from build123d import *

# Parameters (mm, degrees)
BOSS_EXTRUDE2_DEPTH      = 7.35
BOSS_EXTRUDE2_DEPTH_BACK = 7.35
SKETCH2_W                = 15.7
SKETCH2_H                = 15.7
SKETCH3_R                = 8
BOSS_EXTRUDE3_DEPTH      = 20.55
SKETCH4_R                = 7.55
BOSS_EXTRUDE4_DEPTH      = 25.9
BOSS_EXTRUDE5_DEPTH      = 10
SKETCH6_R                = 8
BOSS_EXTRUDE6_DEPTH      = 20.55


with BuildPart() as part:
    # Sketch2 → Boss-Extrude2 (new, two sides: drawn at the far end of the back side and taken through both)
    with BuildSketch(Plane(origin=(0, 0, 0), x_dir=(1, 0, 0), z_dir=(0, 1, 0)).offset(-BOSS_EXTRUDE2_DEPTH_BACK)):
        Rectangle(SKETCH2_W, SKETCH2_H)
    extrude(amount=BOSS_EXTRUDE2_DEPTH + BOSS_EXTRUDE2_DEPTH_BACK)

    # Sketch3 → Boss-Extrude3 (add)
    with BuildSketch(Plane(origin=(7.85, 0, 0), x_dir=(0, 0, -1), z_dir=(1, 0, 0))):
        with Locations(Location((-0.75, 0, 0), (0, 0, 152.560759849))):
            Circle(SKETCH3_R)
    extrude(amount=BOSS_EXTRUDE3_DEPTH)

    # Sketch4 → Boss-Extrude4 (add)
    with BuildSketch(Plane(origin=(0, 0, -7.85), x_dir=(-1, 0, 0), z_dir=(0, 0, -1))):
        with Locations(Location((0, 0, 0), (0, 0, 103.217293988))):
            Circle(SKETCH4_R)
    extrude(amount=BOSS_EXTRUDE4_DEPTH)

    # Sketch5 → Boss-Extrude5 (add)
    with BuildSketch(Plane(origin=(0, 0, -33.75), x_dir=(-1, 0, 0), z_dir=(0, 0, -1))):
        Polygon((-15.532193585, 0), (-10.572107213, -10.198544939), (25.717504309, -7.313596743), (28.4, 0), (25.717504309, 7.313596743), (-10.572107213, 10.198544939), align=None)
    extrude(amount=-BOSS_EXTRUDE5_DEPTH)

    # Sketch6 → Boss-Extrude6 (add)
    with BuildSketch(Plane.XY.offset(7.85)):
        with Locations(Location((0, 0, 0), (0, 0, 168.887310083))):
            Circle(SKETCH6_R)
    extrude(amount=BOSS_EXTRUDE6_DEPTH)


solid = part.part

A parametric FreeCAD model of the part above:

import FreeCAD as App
import Part
import Sketcher
Q = App.Units.Quantity


def add_polygon(sketch, points):
    """Adds a closed chain of lines whose ends are joined by coincident constraints."""
    first, n = sketch.GeometryCount, len(points)
    for a, b in zip(points, points[1:] + points[:1]):
        sketch.addGeometry(Part.LineSegment(App.Vector(*a, 0), App.Vector(*b, 0)), False)
    for i in range(n):
        sketch.addConstraint(Sketcher.Constraint("Coincident", first + i, 2, first + (i + 1) % n, 1))

doc = App.newDocument("Part")
body = doc.addObject("PartDesign::Body", "Body")

sketch1 = body.newObject("Sketcher::SketchObject", "Sketch")
sketch1.AttachmentSupport = (doc.getObject("XZ_Plane"), [""])
sketch1.MapMode = "FlatFace"
add_polygon(sketch1, [(-7.85, -7.85), (-7.85, 7.85), (7.85, 7.85), (7.85, -7.85)])
sketch1.addConstraint(Sketcher.Constraint("Vertical", 0))
sketch1.addConstraint(Sketcher.Constraint("Horizontal", 1))
sketch1.addConstraint(Sketcher.Constraint("Vertical", 2))
sketch1.addConstraint(Sketcher.Constraint("Horizontal", 3))
sketch1.addConstraint(Sketcher.Constraint("Symmetric", 0, 2, 2, 2, -1, 1))
sketch1.addConstraint(Sketcher.Constraint("Equal", 3, 0))
sketch1.addConstraint(Sketcher.Constraint("DistanceX", 1, 1, 1, 2, Q("15.7 mm")))
pad1 = body.newObject("PartDesign::Pad", "Pad")
pad1.Profile = sketch1
pad1.Type = "TwoLengths"
pad1.Length = 7.35
pad1.Length2 = 7.35
pad1.Reversed = True

sketch2 = body.newObject("Sketcher::SketchObject", "Sketch001")
sketch2.AttachmentSupport = (doc.getObject("YZ_Plane"), [""])
sketch2.MapMode = "FlatFace"
sketch2.AttachmentOffset = App.Placement(App.Vector(0, 0, 7.85), App.Rotation())
sketch2.addGeometry(Part.Circle(App.Vector(0, 0.75, 0), App.Vector(0, 0, 1), 8), False)
sketch2.addConstraint(Sketcher.Constraint("PointOnObject", 0, 3, -2))
sketch2.addConstraint(Sketcher.Constraint("Diameter", 0, Q("16 mm")))
sketch2.addConstraint(Sketcher.Constraint("DistanceY", -1, 1, 0, 3, Q("0.75 mm")))
pad2 = body.newObject("PartDesign::Pad", "Pad001")
pad2.Profile = sketch2
pad2.Length = 20.55

sketch3 = body.newObject("Sketcher::SketchObject", "Sketch002")
sketch3.AttachmentSupport = (doc.getObject("XY_Plane"), [""])
sketch3.MapMode = "FlatFace"
sketch3.AttachmentOffset = App.Placement(App.Vector(0, 0, -7.85), App.Rotation())
sketch3.addGeometry(Part.Circle(App.Vector(0, 0, 0), App.Vector(0, 0, 1), 7.55), False)
sketch3.addConstraint(Sketcher.Constraint("Coincident", 0, 3, -1, 1))
sketch3.addConstraint(Sketcher.Constraint("Diameter", 0, Q("15.1 mm")))
pad3 = body.newObject("PartDesign::Pad", "Pad002")
pad3.Profile = sketch3
pad3.Length = 25.9
pad3.Reversed = True

sketch4 = body.newObject("Sketcher::SketchObject", "Sketch003")
sketch4.AttachmentSupport = (doc.getObject("XY_Plane"), [""])
sketch4.MapMode = "FlatFace"
sketch4.AttachmentOffset = App.Placement(App.Vector(0, 0, -33.75), App.Rotation())
add_polygon(sketch4, [(15.532194, 0), (10.572107, -10.198545), (-25.717504, -7.313597), (-28.4, 0), (-25.717504, 7.313597), (10.572107, 10.198545)])
sketch4.addConstraint(Sketcher.Constraint("Symmetric", 1, 2, 3, 2, -1))
sketch4.addConstraint(Sketcher.Constraint("Symmetric", 0, 2, 4, 2, -1))
sketch4.addConstraint(Sketcher.Constraint("PointOnObject", 2, 2, -1))
sketch4.addConstraint(Sketcher.Constraint("PointOnObject", 5, 2, -1))
sketch4.addConstraint(Sketcher.Constraint("DistanceX", 2, 2, -1, 1, Q("28.4 mm")))
sketch4.addConstraint(Sketcher.Constraint("DistanceX", 1, 2, 0, 2, Q("36.289612 mm")))
sketch4.addConstraint(Sketcher.Constraint("DistanceY", 0, 2, 1, 2, Q("2.884948 mm")))
sketch4.addConstraint(Sketcher.Constraint("DistanceY", 0, 2, 3, 2, Q("17.512142 mm")))
sketch4.addConstraint(Sketcher.Constraint("Distance", 0, Q("11.340757 mm")))
sketch4.addConstraint(Sketcher.Constraint("Distance", 2, Q("7.790024 mm")))
pad4 = body.newObject("PartDesign::Pad", "Pad003")
pad4.Profile = sketch4
pad4.Length = 10

sketch5 = body.newObject("Sketcher::SketchObject", "Sketch004")
sketch5.AttachmentSupport = (doc.getObject("XY_Plane"), [""])
sketch5.MapMode = "FlatFace"
sketch5.AttachmentOffset = App.Placement(App.Vector(0, 0, 7.85), App.Rotation())
sketch5.addGeometry(Part.Circle(App.Vector(0, 0, 0), App.Vector(0, 0, 1), 8), False)
sketch5.addConstraint(Sketcher.Constraint("Coincident", 0, 3, -1, 1))
sketch5.addConstraint(Sketcher.Constraint("Diameter", 0, Q("16 mm")))
pad5 = body.newObject("PartDesign::Pad", "Pad004")
pad5.Profile = sketch5
pad5.Length = 20.55

doc.recompute()
